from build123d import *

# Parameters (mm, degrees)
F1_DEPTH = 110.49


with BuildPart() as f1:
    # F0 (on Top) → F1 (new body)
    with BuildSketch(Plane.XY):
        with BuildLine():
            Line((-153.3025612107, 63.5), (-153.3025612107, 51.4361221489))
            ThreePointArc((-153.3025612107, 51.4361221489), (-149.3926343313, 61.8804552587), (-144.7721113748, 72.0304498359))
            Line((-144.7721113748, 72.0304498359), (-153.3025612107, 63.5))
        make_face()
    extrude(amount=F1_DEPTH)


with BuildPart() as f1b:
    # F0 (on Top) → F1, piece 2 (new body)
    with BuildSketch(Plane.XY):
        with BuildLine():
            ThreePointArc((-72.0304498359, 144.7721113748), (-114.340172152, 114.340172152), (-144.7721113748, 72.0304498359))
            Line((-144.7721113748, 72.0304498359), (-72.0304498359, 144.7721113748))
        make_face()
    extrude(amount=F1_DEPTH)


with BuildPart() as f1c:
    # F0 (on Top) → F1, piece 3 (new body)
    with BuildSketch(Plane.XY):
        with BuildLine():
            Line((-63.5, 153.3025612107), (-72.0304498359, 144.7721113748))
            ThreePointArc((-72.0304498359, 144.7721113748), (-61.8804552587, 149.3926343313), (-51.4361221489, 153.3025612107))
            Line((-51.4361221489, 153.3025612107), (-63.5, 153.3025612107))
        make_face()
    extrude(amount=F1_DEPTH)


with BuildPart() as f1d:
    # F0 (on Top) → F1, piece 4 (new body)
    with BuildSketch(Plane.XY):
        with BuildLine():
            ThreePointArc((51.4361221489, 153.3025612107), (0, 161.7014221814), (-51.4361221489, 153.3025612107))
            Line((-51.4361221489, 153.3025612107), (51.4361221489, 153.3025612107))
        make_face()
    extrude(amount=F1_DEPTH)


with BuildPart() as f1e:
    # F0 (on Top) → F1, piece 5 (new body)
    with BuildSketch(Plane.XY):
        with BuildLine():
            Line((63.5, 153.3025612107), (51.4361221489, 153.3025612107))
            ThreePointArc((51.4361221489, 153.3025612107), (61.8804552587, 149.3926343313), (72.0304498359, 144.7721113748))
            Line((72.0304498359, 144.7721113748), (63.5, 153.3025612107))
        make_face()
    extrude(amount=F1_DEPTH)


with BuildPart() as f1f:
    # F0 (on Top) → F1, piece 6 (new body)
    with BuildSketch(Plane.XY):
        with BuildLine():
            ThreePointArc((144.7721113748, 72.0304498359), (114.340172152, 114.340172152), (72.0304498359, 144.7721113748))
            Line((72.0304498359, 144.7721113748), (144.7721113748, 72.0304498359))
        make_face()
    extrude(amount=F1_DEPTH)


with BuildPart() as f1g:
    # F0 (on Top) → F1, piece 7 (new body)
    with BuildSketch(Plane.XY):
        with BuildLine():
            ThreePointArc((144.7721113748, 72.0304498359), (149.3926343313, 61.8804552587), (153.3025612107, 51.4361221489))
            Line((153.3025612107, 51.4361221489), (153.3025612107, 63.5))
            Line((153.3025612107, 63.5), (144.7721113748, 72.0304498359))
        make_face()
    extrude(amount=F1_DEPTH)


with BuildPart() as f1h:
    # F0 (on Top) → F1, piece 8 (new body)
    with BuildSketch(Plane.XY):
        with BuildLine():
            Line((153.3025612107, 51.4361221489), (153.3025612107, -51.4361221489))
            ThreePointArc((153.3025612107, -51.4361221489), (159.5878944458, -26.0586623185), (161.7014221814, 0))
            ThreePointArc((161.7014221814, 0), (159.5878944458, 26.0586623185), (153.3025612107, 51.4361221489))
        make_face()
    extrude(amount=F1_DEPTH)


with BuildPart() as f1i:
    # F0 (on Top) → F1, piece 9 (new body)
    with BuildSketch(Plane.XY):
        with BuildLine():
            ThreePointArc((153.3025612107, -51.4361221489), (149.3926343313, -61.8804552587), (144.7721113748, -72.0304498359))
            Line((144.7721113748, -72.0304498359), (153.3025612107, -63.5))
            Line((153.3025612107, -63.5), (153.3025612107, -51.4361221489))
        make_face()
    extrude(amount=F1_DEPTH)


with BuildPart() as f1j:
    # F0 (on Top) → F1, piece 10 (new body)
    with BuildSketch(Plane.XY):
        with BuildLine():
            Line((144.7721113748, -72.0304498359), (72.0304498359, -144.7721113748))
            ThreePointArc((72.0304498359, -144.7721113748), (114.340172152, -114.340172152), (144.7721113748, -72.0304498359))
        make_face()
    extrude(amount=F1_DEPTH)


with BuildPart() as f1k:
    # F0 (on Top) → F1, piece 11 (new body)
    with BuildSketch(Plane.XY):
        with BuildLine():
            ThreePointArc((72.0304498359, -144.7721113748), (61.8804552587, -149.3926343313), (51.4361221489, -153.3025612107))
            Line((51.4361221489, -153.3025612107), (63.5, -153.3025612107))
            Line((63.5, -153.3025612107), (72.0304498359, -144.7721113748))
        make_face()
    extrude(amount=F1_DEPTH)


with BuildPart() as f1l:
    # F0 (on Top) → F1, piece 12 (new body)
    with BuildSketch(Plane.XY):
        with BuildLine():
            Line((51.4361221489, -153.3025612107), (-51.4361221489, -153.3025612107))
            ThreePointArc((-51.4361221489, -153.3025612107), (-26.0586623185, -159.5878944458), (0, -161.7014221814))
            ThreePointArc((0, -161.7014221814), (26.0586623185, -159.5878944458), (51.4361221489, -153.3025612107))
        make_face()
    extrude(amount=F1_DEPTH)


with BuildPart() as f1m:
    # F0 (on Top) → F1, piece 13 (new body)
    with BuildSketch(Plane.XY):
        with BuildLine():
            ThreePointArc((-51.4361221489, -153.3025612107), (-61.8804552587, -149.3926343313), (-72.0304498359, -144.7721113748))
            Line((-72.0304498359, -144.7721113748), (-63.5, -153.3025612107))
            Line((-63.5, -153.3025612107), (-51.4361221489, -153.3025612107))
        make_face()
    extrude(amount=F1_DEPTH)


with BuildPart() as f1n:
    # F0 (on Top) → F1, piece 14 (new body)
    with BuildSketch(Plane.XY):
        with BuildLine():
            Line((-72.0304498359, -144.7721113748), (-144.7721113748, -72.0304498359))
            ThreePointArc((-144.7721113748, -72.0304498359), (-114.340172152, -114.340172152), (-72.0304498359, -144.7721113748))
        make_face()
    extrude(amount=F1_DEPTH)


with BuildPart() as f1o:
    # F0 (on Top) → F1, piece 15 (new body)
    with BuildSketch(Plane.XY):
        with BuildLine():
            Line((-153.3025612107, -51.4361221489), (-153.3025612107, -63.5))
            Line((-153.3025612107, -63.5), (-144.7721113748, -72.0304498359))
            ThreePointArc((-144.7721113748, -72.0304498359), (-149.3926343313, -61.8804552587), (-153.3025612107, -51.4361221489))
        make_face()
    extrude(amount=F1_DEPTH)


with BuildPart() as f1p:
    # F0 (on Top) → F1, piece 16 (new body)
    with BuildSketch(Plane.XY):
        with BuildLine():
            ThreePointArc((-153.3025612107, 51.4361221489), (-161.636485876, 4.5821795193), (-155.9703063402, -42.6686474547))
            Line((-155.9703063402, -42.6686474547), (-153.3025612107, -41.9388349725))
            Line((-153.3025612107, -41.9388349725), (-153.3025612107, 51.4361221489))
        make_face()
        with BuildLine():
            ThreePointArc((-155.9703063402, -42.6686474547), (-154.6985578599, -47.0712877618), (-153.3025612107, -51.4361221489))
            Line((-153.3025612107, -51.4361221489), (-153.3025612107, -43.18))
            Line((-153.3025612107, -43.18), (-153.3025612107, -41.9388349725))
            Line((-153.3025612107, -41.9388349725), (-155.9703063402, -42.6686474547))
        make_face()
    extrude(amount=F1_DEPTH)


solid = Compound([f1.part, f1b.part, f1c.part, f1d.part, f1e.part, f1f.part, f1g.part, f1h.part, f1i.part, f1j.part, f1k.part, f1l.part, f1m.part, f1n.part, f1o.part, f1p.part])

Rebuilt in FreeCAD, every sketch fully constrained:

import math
import FreeCAD as App
import Part
import Sketcher

V = App.Vector
Q = App.Units.Quantity

doc = App.newDocument("Part")
body = doc.addObject("PartDesign::Body", "Body")

# Sketch on XY plane
sketch1 = doc.addObject("Sketcher::SketchObject", "Sketch")
body.addObject(sketch1)
sketch1.AttachmentSupport = (doc.XY_Plane, [""])
sketch1.MapMode = "FlatFace"
sketch1.addGeometry([
    Part.LineSegment(V(-153.302561, 63.5, 0), V(-153.302561, 51.436122, 0)),
    Part.ArcOfCircle(Part.Circle(V(0, 0, 0), V(0, 0, 1), 161.701422), math.radians(153.547649), math.radians(161.452351)),
    Part.LineSegment(V(-144.772111, 72.03045, 0), V(-153.302561, 63.5, 0)),
], False)
sketch1.addConstraint([
    Sketcher.Constraint("Coincident", 0, 2, 1, 2),
    Sketcher.Constraint("Coincident", 1, 1, 2, 1),
    Sketcher.Constraint("Coincident", 2, 2, 0, 1),
    Sketcher.Constraint("Vertical", 0),
    Sketcher.Constraint("Coincident", 1, 3, -1, 1),
    Sketcher.Constraint("Angle", 2, Q("-135 deg")),
    Sketcher.Constraint("DistanceY", -1, 1, 2, 2, Q("2.5 in")),
    Sketcher.Constraint("Radius", 1, Q("161.701422 mm")),
    Sketcher.Constraint("DistanceY", 0, 2, 0, 1, Q("12.063878 mm")),
])
pad1 = doc.addObject("PartDesign::Pad", "Pad")
body.addObject(pad1)
pad1.Profile = sketch1
pad1.Length = Q("4.35 in")
body2 = doc.addObject("PartDesign::Body", "Body001")

# Sketch on XY plane
sketch2 = doc.addObject("Sketcher::SketchObject", "Sketch001")
body2.addObject(sketch2)
sketch2.AttachmentSupport = (doc.getObject("XY_Plane001"), [""])
sketch2.MapMode = "FlatFace"
sketch2.addGeometry([
    Part.ArcOfCircle(Part.Circle(V(0, 0, 0), V(0, 0, 1), 161.701422), math.radians(116.452351), math.radians(153.547649)),
    Part.LineSegment(V(-144.772111, 72.03045, 0), V(-72.03045, 144.772111, 0)),
], False)
sketch2.addConstraint([
    Sketcher.Constraint("Coincident", 0, 1, 1, 2),
    Sketcher.Constraint("Coincident", 1, 1, 0, 2),
    Sketcher.Constraint("Coincident", 0, 3, -1, 1),
    Sketcher.Constraint("Angle", 1, Q("45 deg")),
    Sketcher.Constraint("Radius", 0, Q("161.701422 mm")),
    Sketcher.Constraint("DistanceX", 0, 1, -1, 1, Q("72.03045 mm")),
])
pad2 = doc.addObject("PartDesign::Pad", "Pad001")
body2.addObject(pad2)
pad2.Profile = sketch2
pad2.Length = Q("4.35 in")
body3 = doc.addObject("PartDesign::Body", "Body002")

# Sketch on XY plane
sketch3 = doc.addObject("Sketcher::SketchObject", "Sketch002")
body3.addObject(sketch3)
sketch3.AttachmentSupport = (doc.getObject("XY_Plane002"), [""])
sketch3.MapMode = "FlatFace"
sketch3.addGeometry([
    Part.LineSegment(V(-63.5, 153.302561, 0), V(-72.03045, 144.772111, 0)),
    Part.ArcOfCircle(Part.Circle(V(0, 0, 0), V(0, 0, 1), 161.701422), math.radians(108.547649), math.radians(116.452351)),
    Part.LineSegment(V(-51.436122, 153.302561, 0), V(-63.5, 153.302561, 0)),
], False)
sketch3.addConstraint([
    Sketcher.Constraint("Coincident", 0, 2, 1, 2),
    Sketcher.Constraint("Coincident", 1, 1, 2, 1),
    Sketcher.Constraint("Coincident", 2, 2, 0, 1),
    Sketcher.Constraint("Horizontal", 2),
    Sketcher.Constraint("Coincident", 1, 3, -1, 1),
    Sketcher.Constraint("Angle", 0, Q("-135 deg")),
    Sketcher.Constraint("DistanceX", 2, 2, -1, 1, Q("2.5 in")),
    Sketcher.Constraint("Radius", 1, Q("161.701422 mm")),
    Sketcher.Constraint("DistanceX", 2, 2, 2, 1, Q("12.063878 mm")),
])
pad3 = doc.addObject("PartDesign::Pad", "Pad002")
body3.addObject(pad3)
pad3.Profile = sketch3
pad3.Length = Q("4.35 in")
body4 = doc.addObject("PartDesign::Body", "Body003")

# Sketch on XY plane
sketch4 = doc.addObject("Sketcher::SketchObject", "Sketch003")
body4.addObject(sketch4)
sketch4.AttachmentSupport = (doc.getObject("XY_Plane003"), [""])
sketch4.MapMode = "FlatFace"
sketch4.addGeometry([
    Part.ArcOfCircle(Part.Circle(V(0, 0, 0), V(0, 0, 1), 161.701422), math.radians(71.452351), math.radians(108.547649)),
    Part.LineSegment(V(-51.436122, 153.302561, 0), V(51.436122, 153.302561, 0)),
], False)
sketch4.addConstraint([
    Sketcher.Constraint("Coincident", 0, 1, 1, 2),
    Sketcher.Constraint("Coincident", 1, 1, 0, 2),
    Sketcher.Constraint("Horizontal", 1),
    Sketcher.Constraint("Coincident", 0, 3, -1, 1),
    Sketcher.Constraint("Radius", 0, Q("161.701422 mm")),
    Sketcher.Constraint("DistanceX", 1, 1, 1, 2, Q("102.872244 mm")),
])
pad4 = doc.addObject("PartDesign::Pad", "Pad003")
body4.addObject(pad4)
pad4.Profile = sketch4
pad4.Length = Q("4.35 in")
body5 = doc.addObject("PartDesign::Body", "Body004")

# Sketch on XY plane
sketch5 = doc.addObject("Sketcher::SketchObject", "Sketch004")
body5.addObject(sketch5)
sketch5.AttachmentSupport = (doc.getObject("XY_Plane004"), [""])
sketch5.MapMode = "FlatFace"
sketch5.addGeometry([
    Part.LineSegment(V(63.5, 153.302561, 0), V(51.436122, 153.302561, 0)),
    Part.ArcOfCircle(Part.Circle(V(0, 0, 0), V(0, 0, 1), 161.701422), math.radians(63.547649), math.radians(71.452351)),
    Part.LineSegment(V(72.03045, 144.772111, 0), V(63.5, 153.302561, 0)),
], False)
sketch5.addConstraint([
    Sketcher.Constraint("Coincident", 0, 2, 1, 2),
    Sketcher.Constraint("Coincident", 1, 1, 2, 1),
    Sketcher.Constraint("Coincident", 2, 2, 0, 1),
    Sketcher.Constraint("Horizontal", 0),
    Sketcher.Constraint("Coincident", 1, 3, -1, 1),
    Sketcher.Constraint("Angle", 2, Q("135 deg")),
    Sketcher.Constraint("DistanceX", -1, 1, 2, 2, Q("2.5 in")),
    Sketcher.Constraint("Radius", 1, Q("161.701422 mm")),
    Sketcher.Constraint("DistanceX", 0, 2, 0, 1, Q("12.063878 mm")),
])
pad5 = doc.addObject("PartDesign::Pad", "Pad004")
body5.addObject(pad5)
pad5.Profile = sketch5
pad5.Length = Q("4.35 in")
body6 = doc.addObject("PartDesign::Body", "Body005")

# Sketch on XY plane
sketch6 = doc.addObject("Sketcher::SketchObject", "Sketch005")
body6.addObject(sketch6)
sketch6.AttachmentSupport = (doc.getObject("XY_Plane005"), [""])
sketch6.MapMode = "FlatFace"
sketch6.addGeometry([
    Part.ArcOfCircle(Part.Circle(V(0, 0, 0), V(0, 0, 1), 161.701422), math.radians(26.452351), math.radians(63.547649)),
    Part.LineSegment(V(72.03045, 144.772111, 0), V(144.772111, 72.03045, 0)),
], False)
sketch6.addConstraint([
    Sketcher.Constraint("Coincident", 0, 1, 1, 2),
    Sketcher.Constraint("Coincident", 1, 1, 0, 2),
    Sketcher.Constraint("Coincident", 0, 3, -1, 1),
    Sketcher.Constraint("Angle", 1, Q("-45 deg")),
    Sketcher.Constraint("Radius", 0, Q("161.701422 mm")),
    Sketcher.Constraint("DistanceX", -1, 1, 0, 1, Q("144.772111 mm")),
])
pad6 = doc.addObject("PartDesign::Pad", "Pad005")
body6.addObject(pad6)
pad6.Profile = sketch6
pad6.Length = Q("4.35 in")
body7 = doc.addObject("PartDesign::Body", "Body006")

# Sketch on XY plane
sketch7 = doc.addObject("Sketcher::SketchObject", "Sketch006")
body7.addObject(sketch7)
sketch7.AttachmentSupport = (doc.getObject("XY_Plane006"), [""])
sketch7.MapMode = "FlatFace"
sketch7.addGeometry([
    Part.ArcOfCircle(Part.Circle(V(0, 0, 0), V(0, 0, 1), 161.701422), math.radians(18.547649), math.radians(26.452351)),
    Part.LineSegment(V(153.302561, 51.436122, 0), V(153.302561, 63.5, 0)),
    Part.LineSegment(V(153.302561, 63.5, 0), V(144.772111, 72.03045, 0)),
], False)
sketch7.addConstraint([
    Sketcher.Constraint("Coincident", 0, 1, 1, 1),
    Sketcher.Constraint("Coincident", 1, 2, 2, 1),
    Sketcher.Constraint("Coincident", 2, 2, 0, 2),
    Sketcher.Constraint("Vertical", 1),
    Sketcher.Constraint("Coincident", 0, 3, -1, 1),
    Sketcher.Constraint("Angle", 2, Q("135 deg")),
    Sketcher.Constraint("DistanceY", -1, 1, 1, 2, Q("2.5 in")),
    Sketcher.Constraint("Radius", 0, Q("161.701422 mm")),
    Sketcher.Constraint("DistanceY", 1, 1, 1, 2, Q("12.063878 mm")),
])
pad7 = doc.addObject("PartDesign::Pad", "Pad006")
body7.addObject(pad7)
pad7.Profile = sketch7
pad7.Length = Q("4.35 in")
body8 = doc.addObject("PartDesign::Body", "Body007")

# Sketch on XY plane
sketch8 = doc.addObject("Sketcher::SketchObject", "Sketch007")
body8.addObject(sketch8)
sketch8.AttachmentSupport = (doc.getObject("XY_Plane007"), [""])
sketch8.MapMode = "FlatFace"
sketch8.addGeometry([
    Part.LineSegment(V(153.302561, 51.436122, 0), V(153.302561, -51.436122, 0)),
    Part.ArcOfCircle(Part.Circle(V(0, 0, 0), V(0, 0, 1), 161.701422), math.radians(-18.547649), math.radians(0)),
    Part.ArcOfCircle(Part.Circle(V(0, 0, 0), V(0, 0, 1), 161.701422), math.radians(0), math.radians(18.547649)),
], False)
sketch8.addConstraint([
    Sketcher.Constraint("Coincident", 0, 2, 1, 1),
    Sketcher.Constraint("Tangent", 1, 2, 2, 1),
    Sketcher.Constraint("Coincident", 2, 2, 0, 1),
    Sketcher.Constraint("Vertical", 0),
    Sketcher.Constraint("Coincident", 1, 3, -1, 1),
    Sketcher.Constraint("Equal", 1, 2),
    Sketcher.Constraint("PointOnObject", 1, 2, -1),
    Sketcher.Constraint("Radius", 1, Q("161.701422 mm")),
    Sketcher.Constraint("DistanceY", 0, 2, 0, 1, Q("102.872244 mm")),
])
pad8 = doc.addObject("PartDesign::Pad", "Pad007")
body8.addObject(pad8)
pad8.Profile = sketch8
pad8.Length = Q("4.35 in")
body9 = doc.addObject("PartDesign::Body", "Body008")

# Sketch on XY plane
sketch9 = doc.addObject("Sketcher::SketchObject", "Sketch008")
body9.addObject(sketch9)
sketch9.AttachmentSupport = (doc.getObject("XY_Plane008"), [""])
sketch9.MapMode = "FlatFace"
sketch9.addGeometry([
    Part.ArcOfCircle(Part.Circle(V(0, 0, 0), V(0, 0, 1), 161.701422), math.radians(-26.452351), math.radians(-18.547649)),
    Part.LineSegment(V(144.772111, -72.03045, 0), V(153.302561, -63.5, 0)),
    Part.LineSegment(V(153.302561, -63.5, 0), V(153.302561, -51.436122, 0)),
], False)
sketch9.addConstraint([
    Sketcher.Constraint("Coincident", 0, 1, 1, 1),
    Sketcher.Constraint("Coincident", 1, 2, 2, 1),
    Sketcher.Constraint("Coincident", 2, 2, 0, 2),
    Sketcher.Constraint("Vertical", 2),
    Sketcher.Constraint("Coincident", 0, 3, -1, 1),
    Sketcher.Constraint("Angle", 1, Q("45 deg")),
    Sketcher.Constraint("DistanceY", 1, 2, -1, 1, Q("2.5 in")),
    Sketcher.Constraint("Radius", 0, Q("161.701422 mm")),
    Sketcher.Constraint("DistanceY", 2, 1, 2, 2, Q("12.063878 mm")),
])
pad9 = doc.addObject("PartDesign::Pad", "Pad008")
body9.addObject(pad9)
pad9.Profile = sketch9
pad9.Length = Q("4.35 in")
body10 = doc.addObject("PartDesign::Body", "Body009")

# Sketch on XY plane
sketch10 = doc.addObject("Sketcher::SketchObject", "Sketch009")
body10.addObject(sketch10)
sketch10.AttachmentSupport = (doc.getObject("XY_Plane009"), [""])
sketch10.MapMode = "FlatFace"
sketch10.addGeometry([
    Part.LineSegment(V(144.772111, -72.03045, 0), V(72.03045, -144.772111, 0)),
    Part.ArcOfCircle(Part.Circle(V(0, 0, 0), V(0, 0, 1), 161.701422), math.radians(-63.547649), math.radians(-26.452351)),
], False)
sketch10.addConstraint([
    Sketcher.Constraint("Coincident", 0, 1, 1, 2),
    Sketcher.Constraint("Coincident", 1, 1, 0, 2),
    Sketcher.Constraint("Coincident", 1, 3, -1, 1),
    Sketcher.Constraint("Angle", 0, Q("-135 deg")),
    Sketcher.Constraint("Radius", 1, Q("161.701422 mm")),
    Sketcher.Constraint("DistanceX", -1, 1, 0, 1, Q("144.772111 mm")),
])
pad10 = doc.addObject("PartDesign::Pad", "Pad009")
body10.addObject(pad10)
pad10.Profile = sketch10
pad10.Length = Q("4.35 in")
body11 = doc.addObject("PartDesign::Body", "Body010")

# Sketch on XY plane
sketch11 = doc.addObject("Sketcher::SketchObject", "Sketch010")
body11.addObject(sketch11)
sketch11.AttachmentSupport = (doc.getObject("XY_Plane010"), [""])
sketch11.MapMode = "FlatFace"
sketch11.addGeometry([
    Part.ArcOfCircle(Part.Circle(V(0, 0, 0), V(0, 0, 1), 161.701422), math.radians(-71.452351), math.radians(-63.547649)),
    Part.LineSegment(V(51.436122, -153.302561, 0), V(63.5, -153.302561, 0)),
    Part.LineSegment(V(63.5, -153.302561, 0), V(72.03045, -144.772111, 0)),
], False)
sketch11.addConstraint([
    Sketcher.Constraint("Coincident", 0, 1, 1, 1),
    Sketcher.Constraint("Coincident", 1, 2, 2, 1),
    Sketcher.Constraint("Coincident", 2, 2, 0, 2),
    Sketcher.Constraint("Horizontal", 1),
    Sketcher.Constraint("Coincident", 0, 3, -1, 1),
    Sketcher.Constraint("Angle", 2, Q("45 deg")),
    Sketcher.Constraint("DistanceX", -1, 1, 1, 2, Q("2.5 in")),
    Sketcher.Constraint("Radius", 0, Q("161.701422 mm")),
    Sketcher.Constraint("DistanceX", 1, 1, 1, 2, Q("12.063878 mm")),
])
pad11 = doc.addObject("PartDesign::Pad", "Pad010")
body11.addObject(pad11)
pad11.Profile = sketch11
pad11.Length = Q("4.35 in")
body12 = doc.addObject("PartDesign::Body", "Body011")

# Sketch on XY plane
sketch12 = doc.addObject("Sketcher::SketchObject", "Sketch011")
body12.addObject(sketch12)
sketch12.AttachmentSupport = (doc.getObject("XY_Plane011"), [""])
sketch12.MapMode = "FlatFace"
sketch12.addGeometry([
    Part.LineSegment(V(51.436122, -153.302561, 0), V(-51.436122, -153.302561, 0)),
    Part.ArcOfCircle(Part.Circle(V(0, 0, 0), V(0, 0, 1), 161.701422), math.radians(-108.547649), math.radians(-90)),
    Part.ArcOfCircle(Part.Circle(V(0, 0, 0), V(0, 0, 1), 161.701422), math.radians(-90), math.radians(-71.452351)),
], False)
sketch12.addConstraint([
    Sketcher.Constraint("Coincident", 0, 2, 1, 1),
    Sketcher.Constraint("Tangent", 1, 2, 2, 1),
    Sketcher.Constraint("Coincident", 2, 2, 0, 1),
    Sketcher.Constraint("Horizontal", 0),
    Sketcher.Constraint("Coincident", 1, 3, -1, 1),
    Sketcher.Constraint("Equal", 1, 2),
    Sketcher.Constraint("PointOnObject", 1, 2, -2),
    Sketcher.Constraint("Radius", 1, Q("161.701422 mm")),
    Sketcher.Constraint("DistanceX", 0, 2, 0, 1, Q("102.872244 mm")),
])
pad12 = doc.addObject("PartDesign::Pad", "Pad011")
body12.addObject(pad12)
pad12.Profile = sketch12
pad12.Length = Q("4.35 in")
body13 = doc.addObject("PartDesign::Body", "Body012")

# Sketch on XY plane
sketch13 = doc.addObject("Sketcher::SketchObject", "Sketch012")
body13.addObject(sketch13)
sketch13.AttachmentSupport = (doc.getObject("XY_Plane012"), [""])
sketch13.MapMode = "FlatFace"
sketch13.addGeometry([
    Part.ArcOfCircle(Part.Circle(V(0, 0, 0), V(0, 0, 1), 161.701422), math.radians(-116.452351), math.radians(-108.547649)),
    Part.LineSegment(V(-72.03045, -144.772111, 0), V(-63.5, -153.302561, 0)),
    Part.LineSegment(V(-63.5, -153.302561, 0), V(-51.436122, -153.302561, 0)),
], False)
sketch13.addConstraint([
    Sketcher.Constraint("Coincident", 0, 1, 1, 1),
    Sketcher.Constraint("Coincident", 1, 2, 2, 1),
    Sketcher.Constraint("Coincident", 2, 2, 0, 2),
    Sketcher.Constraint("Horizontal", 2),
    Sketcher.Constraint("Coincident", 0, 3, -1, 1),
    Sketcher.Constraint("Angle", 1, Q("-45 deg")),
    Sketcher.Constraint("DistanceX", 1, 2, -1, 1, Q("2.5 in")),
    Sketcher.Constraint("Radius", 0, Q("161.701422 mm")),
    Sketcher.Constraint("DistanceX", 2, 1, 2, 2, Q("12.063878 mm")),
])
pad13 = doc.addObject("PartDesign::Pad", "Pad012")
body13.addObject(pad13)
pad13.Profile = sketch13
pad13.Length = Q("4.35 in")
body14 = doc.addObject("PartDesign::Body", "Body013")

# Sketch on XY plane
sketch14 = doc.addObject("Sketcher::SketchObject", "Sketch013")
body14.addObject(sketch14)
sketch14.AttachmentSupport = (doc.getObject("XY_Plane013"), [""])
sketch14.MapMode = "FlatFace"
sketch14.addGeometry([
    Part.LineSegment(V(-72.03045, -144.772111, 0), V(-144.772111, -72.03045, 0)),
    Part.ArcOfCircle(Part.Circle(V(0, 0, 0), V(0, 0, 1), 161.701422), math.radians(-153.547649), math.radians(-116.452351)),
], False)
sketch14.addConstraint([
    Sketcher.Constraint("Coincident", 0, 1, 1, 2),
    Sketcher.Constraint("Coincident", 1, 1, 0, 2),
    Sketcher.Constraint("Coincident", 1, 3, -1, 1),
    Sketcher.Constraint("Angle", 0, Q("135 deg")),
    Sketcher.Constraint("Radius", 1, Q("161.701422 mm")),
    Sketcher.Constraint("DistanceX", 0, 1, -1, 1, Q("72.03045 mm")),
])
pad14 = doc.addObject("PartDesign::Pad", "Pad013")
body14.addObject(pad14)
pad14.Profile = sketch14
pad14.Length = Q("4.35 in")
body15 = doc.addObject("PartDesign::Body", "Body014")

# Sketch on XY plane
sketch15 = doc.addObject("Sketcher::SketchObject", "Sketch014")
body15.addObject(sketch15)
sketch15.AttachmentSupport = (doc.getObject("XY_Plane014"), [""])
sketch15.MapMode = "FlatFace"
sketch15.addGeometry([
    Part.LineSegment(V(-153.302561, -51.436122, 0), V(-153.302561, -63.5, 0)),
    Part.LineSegment(V(-153.302561, -63.5, 0), V(-144.772111, -72.03045, 0)),
    Part.ArcOfCircle(Part.Circle(V(0, 0, 0), V(0, 0, 1), 161.701422), math.radians(-161.452351), math.radians(-153.547649)),
], False)
sketch15.addConstraint([
    Sketcher.Constraint("Coincident", 0, 2, 1, 1),
    Sketcher.Constraint("Coincident", 1, 2, 2, 2),
    Sketcher.Constraint("Coincident", 2, 1, 0, 1),
    Sketcher.Constraint("Vertical", 0),
    Sketcher.Constraint("Coincident", 2, 3, -1, 1),
    Sketcher.Constraint("Angle", 1, Q("-45 deg")),
    Sketcher.Constraint("DistanceY", 0, 2, -1, 1, Q("2.5 in")),
    Sketcher.Constraint("Radius", 2, Q("161.701422 mm")),
    Sketcher.Constraint("DistanceY", 0, 2, 0, 1, Q("12.063878 mm")),
])
pad15 = doc.addObject("PartDesign::Pad", "Pad014")
body15.addObject(pad15)
pad15.Profile = sketch15
pad15.Length = Q("4.35 in")
body16 = doc.addObject("PartDesign::Body", "Body015")

# Sketch on XY plane
sketch16 = doc.addObject("Sketcher::SketchObject", "Sketch015")
body16.addObject(sketch16)
sketch16.AttachmentSupport = (doc.getObject("XY_Plane015"), [""])
sketch16.MapMode = "FlatFace"
sketch16.addGeometry([
    Part.ArcOfCircle(Part.Circle(V(0, 0, 0), V(0, 0, 1), 161.701422), math.radians(161.452351), math.radians(195.3)),
    Part.ArcOfCircle(Part.Circle(V(0, 0, 0), V(0, 0, 1), 161.701422), math.radians(-164.7), math.radians(-161.452351)),
    Part.LineSegment(V(-153.302561, -51.436122, 0), V(-153.302561, 51.436122, 0)),
], False)
sketch16.addConstraint([
    Sketcher.Constraint("Tangent", 0, 2, 1, 1),
    Sketcher.Constraint("Coincident", 1, 2, 2, 1),
    Sketcher.Constraint("Coincident", 2, 2, 0, 1),
    Sketcher.Constraint("Vertical", 2),
    Sketcher.Constraint("Coincident", 0, 3, -1, 1),
    Sketcher.Constraint("Equal", 0, 1),
    Sketcher.Constraint("Radius", 0, Q("161.701422 mm")),
    Sketcher.Constraint("DistanceY", 2, 1, 2, 2, Q("102.872244 mm")),
    Sketcher.Constraint("DistanceY", 0, 2, 2, 2, Q("94.10477 mm")),
])
pad16 = doc.addObject("PartDesign::Pad", "Pad015")
body16.addObject(pad16)
pad16.Profile = sketch16
pad16.Length = Q("4.35 in")

doc.recompute()
